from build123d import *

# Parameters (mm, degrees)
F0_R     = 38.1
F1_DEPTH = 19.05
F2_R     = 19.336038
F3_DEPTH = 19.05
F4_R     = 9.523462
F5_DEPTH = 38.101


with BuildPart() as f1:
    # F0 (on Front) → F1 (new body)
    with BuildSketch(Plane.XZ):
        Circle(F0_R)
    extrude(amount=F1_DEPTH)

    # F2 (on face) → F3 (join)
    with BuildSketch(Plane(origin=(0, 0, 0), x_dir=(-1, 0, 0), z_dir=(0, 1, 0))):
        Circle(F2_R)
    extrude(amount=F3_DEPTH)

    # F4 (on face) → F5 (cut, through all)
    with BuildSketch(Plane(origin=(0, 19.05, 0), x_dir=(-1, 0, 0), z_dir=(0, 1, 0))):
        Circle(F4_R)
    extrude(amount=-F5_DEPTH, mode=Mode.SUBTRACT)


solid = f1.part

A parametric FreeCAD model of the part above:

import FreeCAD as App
import Part
import Sketcher
Q = App.Units.Quantity

doc = App.newDocument("Part")
body = doc.addObject("PartDesign::Body", "Body")

# Sketch on XZ plane
sketch1 = body.newObject("Sketcher::SketchObject", "Sketch")
sketch1.AttachmentSupport = (doc.getObject("XZ_Plane"), [""])
sketch1.MapMode = "FlatFace"
sketch1.addGeometry(Part.Circle(App.Vector(0, 0, 0), App.Vector(0, 0, 1), 38.1), False)
sketch1.addConstraint([
    Sketcher.Constraint("Coincident", 0, 3, -1, 1),
    Sketcher.Constraint("Diameter", 0, Q("3 in")),
])
pad1 = body.newObject("PartDesign::Pad", "Pad")
pad1.Profile = sketch1
pad1.Length = Q("0.75 in")

# Sketch on XZ plane
sketch2 = body.newObject("Sketcher::SketchObject", "Sketch001")
sketch2.AttachmentSupport = (doc.getObject("XZ_Plane"), [""])
sketch2.MapMode = "FlatFace"
sketch2.addGeometry(Part.Circle(App.Vector(0, 0, 0), App.Vector(0, 0, 1), 19.336038), False)
sketch2.addConstraint([
    Sketcher.Constraint("Coincident", 0, 3, -1, 1),
    Sketcher.Constraint("Diameter", 0, Q("38.672076 mm")),
])
pad2 = body.newObject("PartDesign::Pad", "Pad001")
pad2.Profile = sketch2
pad2.Length = Q("0.75 in")
pad2.Reversed = True

# Sketch on XZ plane
sketch3 = body.newObject("Sketcher::SketchObject", "Sketch002")
sketch3.AttachmentSupport = (doc.getObject("XZ_Plane"), [""])
sketch3.MapMode = "FlatFace"
sketch3.AttachmentOffset = App.Placement(App.Vector(0, 0, -0.75 * 25.4), App.Rotation())
sketch3.addGeometry(Part.Circle(App.Vector(0, 0, 0), App.Vector(0, 0, 1), 9.523462), False)
sketch3.addConstraint([
    Sketcher.Constraint("Coincident", 0, 3, -1, 1),
    Sketcher.Constraint("Diameter", 0, Q("19.046924 mm")),
])
pocket1 = body.newObject("PartDesign::Pocket", "Pocket")
pocket1.Profile = sketch3
pocket1.Type = "ThroughAll"
pocket1.Reversed = True

doc.recompute()
